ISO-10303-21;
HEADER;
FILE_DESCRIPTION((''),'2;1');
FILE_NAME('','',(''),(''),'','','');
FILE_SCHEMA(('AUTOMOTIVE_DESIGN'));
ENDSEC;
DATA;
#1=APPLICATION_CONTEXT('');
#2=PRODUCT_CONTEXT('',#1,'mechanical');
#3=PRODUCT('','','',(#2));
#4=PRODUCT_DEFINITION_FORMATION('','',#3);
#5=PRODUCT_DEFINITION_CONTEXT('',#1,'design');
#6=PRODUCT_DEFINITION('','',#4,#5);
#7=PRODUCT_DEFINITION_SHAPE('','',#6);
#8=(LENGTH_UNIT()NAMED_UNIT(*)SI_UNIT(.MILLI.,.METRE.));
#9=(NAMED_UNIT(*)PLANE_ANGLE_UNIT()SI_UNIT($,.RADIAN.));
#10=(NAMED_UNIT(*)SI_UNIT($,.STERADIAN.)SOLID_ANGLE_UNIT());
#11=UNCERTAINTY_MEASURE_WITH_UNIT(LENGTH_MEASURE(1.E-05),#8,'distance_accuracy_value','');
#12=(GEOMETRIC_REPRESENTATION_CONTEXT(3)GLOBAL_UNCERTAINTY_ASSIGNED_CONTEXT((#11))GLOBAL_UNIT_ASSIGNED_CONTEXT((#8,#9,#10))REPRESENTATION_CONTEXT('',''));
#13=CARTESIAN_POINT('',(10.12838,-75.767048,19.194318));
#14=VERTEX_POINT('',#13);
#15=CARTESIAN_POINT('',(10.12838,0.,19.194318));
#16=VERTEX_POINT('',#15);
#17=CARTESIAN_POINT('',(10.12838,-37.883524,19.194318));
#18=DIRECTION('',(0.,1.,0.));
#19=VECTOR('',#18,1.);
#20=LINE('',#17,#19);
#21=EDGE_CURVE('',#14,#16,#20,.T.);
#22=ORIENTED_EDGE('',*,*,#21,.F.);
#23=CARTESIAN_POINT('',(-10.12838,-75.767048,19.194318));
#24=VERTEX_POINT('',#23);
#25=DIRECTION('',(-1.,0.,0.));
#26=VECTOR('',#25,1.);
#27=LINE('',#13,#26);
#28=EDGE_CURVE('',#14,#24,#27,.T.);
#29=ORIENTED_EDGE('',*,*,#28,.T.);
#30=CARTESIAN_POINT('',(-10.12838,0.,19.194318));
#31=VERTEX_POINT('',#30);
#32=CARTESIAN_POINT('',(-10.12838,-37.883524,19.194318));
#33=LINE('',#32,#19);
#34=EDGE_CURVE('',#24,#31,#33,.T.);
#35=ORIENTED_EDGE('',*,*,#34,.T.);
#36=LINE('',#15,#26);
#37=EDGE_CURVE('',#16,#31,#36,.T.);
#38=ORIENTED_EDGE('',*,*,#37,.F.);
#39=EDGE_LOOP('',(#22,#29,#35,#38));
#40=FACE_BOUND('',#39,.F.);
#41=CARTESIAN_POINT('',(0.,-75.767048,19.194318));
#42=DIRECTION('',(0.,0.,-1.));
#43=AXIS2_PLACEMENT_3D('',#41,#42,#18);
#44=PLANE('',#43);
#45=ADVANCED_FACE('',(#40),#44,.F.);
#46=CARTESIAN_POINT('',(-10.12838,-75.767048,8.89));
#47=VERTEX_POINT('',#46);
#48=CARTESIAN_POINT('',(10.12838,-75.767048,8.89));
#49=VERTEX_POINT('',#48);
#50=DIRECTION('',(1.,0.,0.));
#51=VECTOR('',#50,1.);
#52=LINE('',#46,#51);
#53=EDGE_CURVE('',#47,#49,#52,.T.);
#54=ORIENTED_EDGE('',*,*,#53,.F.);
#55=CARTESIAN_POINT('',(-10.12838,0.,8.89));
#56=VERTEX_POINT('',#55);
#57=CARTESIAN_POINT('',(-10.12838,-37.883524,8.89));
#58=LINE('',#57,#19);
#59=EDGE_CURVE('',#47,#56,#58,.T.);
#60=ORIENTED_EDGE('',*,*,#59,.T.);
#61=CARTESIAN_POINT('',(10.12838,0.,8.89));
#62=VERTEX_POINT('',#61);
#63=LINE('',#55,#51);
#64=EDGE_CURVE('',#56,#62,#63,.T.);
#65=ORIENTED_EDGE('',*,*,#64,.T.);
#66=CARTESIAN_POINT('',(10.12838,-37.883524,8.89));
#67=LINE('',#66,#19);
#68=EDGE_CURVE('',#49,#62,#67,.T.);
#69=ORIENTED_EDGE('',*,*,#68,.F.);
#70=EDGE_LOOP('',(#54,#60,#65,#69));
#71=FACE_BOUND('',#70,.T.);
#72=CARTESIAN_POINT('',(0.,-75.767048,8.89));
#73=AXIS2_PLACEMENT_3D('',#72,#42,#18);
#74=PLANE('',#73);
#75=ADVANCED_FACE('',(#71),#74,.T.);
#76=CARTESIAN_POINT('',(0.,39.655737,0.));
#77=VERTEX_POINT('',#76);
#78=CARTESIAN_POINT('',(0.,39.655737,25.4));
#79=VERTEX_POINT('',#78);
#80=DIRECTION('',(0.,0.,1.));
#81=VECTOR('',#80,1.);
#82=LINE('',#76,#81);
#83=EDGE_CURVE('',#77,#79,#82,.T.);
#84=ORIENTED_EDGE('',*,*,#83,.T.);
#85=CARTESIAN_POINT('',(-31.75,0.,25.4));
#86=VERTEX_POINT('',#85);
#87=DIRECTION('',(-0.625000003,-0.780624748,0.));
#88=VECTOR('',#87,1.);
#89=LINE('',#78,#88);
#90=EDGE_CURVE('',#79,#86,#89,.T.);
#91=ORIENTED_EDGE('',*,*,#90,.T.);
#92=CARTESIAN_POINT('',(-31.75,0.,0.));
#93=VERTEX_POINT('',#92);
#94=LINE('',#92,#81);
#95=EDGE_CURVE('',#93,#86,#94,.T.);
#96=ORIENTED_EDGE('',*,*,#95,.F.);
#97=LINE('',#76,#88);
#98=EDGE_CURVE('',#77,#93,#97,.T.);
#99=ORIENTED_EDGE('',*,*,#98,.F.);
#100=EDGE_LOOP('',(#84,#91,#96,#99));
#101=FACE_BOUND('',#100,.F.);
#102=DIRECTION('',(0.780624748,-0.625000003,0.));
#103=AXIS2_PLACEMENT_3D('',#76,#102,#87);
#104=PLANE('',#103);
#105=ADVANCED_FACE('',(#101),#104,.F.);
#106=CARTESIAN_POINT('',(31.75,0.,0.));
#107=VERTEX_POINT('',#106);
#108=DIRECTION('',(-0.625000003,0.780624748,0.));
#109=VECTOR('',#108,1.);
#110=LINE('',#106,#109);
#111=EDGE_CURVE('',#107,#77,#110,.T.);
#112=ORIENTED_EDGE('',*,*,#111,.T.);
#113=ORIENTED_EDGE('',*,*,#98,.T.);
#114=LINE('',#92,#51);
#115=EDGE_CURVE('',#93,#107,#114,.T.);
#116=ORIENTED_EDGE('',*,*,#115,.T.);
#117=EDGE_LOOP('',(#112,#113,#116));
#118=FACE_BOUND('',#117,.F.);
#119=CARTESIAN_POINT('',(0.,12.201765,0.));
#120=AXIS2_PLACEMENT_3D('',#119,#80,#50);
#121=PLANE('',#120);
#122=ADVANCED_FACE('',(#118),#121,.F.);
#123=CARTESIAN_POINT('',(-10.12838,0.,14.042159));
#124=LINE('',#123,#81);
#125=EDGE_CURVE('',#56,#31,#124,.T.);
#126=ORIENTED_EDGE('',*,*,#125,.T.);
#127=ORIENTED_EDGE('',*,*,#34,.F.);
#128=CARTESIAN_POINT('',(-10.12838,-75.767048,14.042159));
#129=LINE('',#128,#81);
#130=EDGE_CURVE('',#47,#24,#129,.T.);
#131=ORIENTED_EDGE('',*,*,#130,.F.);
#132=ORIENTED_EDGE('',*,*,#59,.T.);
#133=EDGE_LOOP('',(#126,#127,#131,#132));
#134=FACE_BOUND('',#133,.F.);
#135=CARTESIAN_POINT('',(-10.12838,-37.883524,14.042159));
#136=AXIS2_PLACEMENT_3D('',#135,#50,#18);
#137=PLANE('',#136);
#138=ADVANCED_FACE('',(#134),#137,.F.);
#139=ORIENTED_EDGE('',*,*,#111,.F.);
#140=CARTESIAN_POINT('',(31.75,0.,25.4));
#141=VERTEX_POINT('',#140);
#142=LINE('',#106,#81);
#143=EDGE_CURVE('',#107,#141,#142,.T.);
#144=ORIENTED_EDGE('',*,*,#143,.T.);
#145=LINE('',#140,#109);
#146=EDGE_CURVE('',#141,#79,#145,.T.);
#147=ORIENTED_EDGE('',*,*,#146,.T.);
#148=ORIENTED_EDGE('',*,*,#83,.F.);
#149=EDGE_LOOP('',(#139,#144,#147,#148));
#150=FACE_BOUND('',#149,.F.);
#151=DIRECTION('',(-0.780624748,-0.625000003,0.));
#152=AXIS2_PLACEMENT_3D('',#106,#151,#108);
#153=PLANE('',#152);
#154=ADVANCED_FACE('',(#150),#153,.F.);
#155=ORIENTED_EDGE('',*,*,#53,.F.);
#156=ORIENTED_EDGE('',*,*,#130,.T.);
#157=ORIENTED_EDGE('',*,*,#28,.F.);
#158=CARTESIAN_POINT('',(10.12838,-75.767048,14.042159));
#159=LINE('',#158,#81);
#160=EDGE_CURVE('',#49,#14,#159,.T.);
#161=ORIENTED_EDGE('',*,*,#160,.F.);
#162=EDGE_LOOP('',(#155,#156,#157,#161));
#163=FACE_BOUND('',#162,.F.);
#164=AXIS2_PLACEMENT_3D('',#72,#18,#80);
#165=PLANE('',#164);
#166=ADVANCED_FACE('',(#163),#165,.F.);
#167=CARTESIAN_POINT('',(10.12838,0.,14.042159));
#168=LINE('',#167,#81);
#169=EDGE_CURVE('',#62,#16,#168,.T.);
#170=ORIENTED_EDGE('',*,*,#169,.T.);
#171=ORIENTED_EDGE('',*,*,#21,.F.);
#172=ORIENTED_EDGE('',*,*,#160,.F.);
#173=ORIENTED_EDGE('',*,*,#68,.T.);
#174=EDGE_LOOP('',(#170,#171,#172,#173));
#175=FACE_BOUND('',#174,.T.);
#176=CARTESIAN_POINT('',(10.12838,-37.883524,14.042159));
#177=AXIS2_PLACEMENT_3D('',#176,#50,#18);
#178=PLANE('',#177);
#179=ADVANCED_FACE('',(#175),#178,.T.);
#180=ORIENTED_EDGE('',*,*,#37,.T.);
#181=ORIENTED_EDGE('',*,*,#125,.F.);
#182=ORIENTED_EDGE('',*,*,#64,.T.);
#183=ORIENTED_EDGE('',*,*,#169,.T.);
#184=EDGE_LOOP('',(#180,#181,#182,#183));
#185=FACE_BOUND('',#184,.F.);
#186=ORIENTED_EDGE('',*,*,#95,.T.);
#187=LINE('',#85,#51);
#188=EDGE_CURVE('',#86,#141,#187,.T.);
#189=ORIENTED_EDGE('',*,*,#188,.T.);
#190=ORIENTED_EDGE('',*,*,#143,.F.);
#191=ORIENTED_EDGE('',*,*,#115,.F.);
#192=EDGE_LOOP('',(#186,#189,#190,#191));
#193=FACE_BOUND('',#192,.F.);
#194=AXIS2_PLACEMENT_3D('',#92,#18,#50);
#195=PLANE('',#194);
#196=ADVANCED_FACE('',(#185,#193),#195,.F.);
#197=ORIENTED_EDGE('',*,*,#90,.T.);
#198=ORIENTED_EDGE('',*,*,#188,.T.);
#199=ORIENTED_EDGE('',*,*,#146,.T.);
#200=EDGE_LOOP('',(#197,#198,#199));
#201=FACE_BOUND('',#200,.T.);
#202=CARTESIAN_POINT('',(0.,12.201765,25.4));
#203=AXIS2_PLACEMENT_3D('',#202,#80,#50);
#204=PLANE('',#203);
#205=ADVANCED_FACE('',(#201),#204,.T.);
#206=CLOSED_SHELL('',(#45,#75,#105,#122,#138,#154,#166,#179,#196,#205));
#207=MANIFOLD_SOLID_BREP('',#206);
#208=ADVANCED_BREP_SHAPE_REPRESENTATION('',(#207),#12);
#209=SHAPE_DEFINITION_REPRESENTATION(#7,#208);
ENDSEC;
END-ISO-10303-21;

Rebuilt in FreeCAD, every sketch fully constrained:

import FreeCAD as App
import Part
import Sketcher
Q = App.Units.Quantity


def add_polygon(sketch, points):
    """Adds a closed chain of lines whose ends are joined by coincident constraints."""
    first, n = sketch.GeometryCount, len(points)
    for a, b in zip(points, points[1:] + points[:1]):
        sketch.addGeometry(Part.LineSegment(App.Vector(*a, 0), App.Vector(*b, 0)), False)
    for i in range(n):
        sketch.addConstraint(Sketcher.Constraint("Coincident", first + i, 2, first + (i + 1) % n, 1))

doc = App.newDocument("Part")
body = doc.addObject("PartDesign::Body", "Body")

# Sketch on XY plane
sketch1 = body.newObject("Sketcher::SketchObject", "Sketch")
sketch1.AttachmentSupport = (doc.getObject("XY_Plane"), [""])
sketch1.MapMode = "FlatFace"
add_polygon(sketch1, [(32, 0), (0, 40), (-32, 0)])  # lines 0-2
sketch1.addConstraint(Sketcher.Constraint("Horizontal", 2))
sketch1.addConstraint(Sketcher.Constraint("Symmetric", 1, 2, 2, 2, -1, 1))
sketch1.addConstraint(Sketcher.Constraint("PointOnObject", 0, 2, -2))
sketch1.addConstraint(Sketcher.Constraint("Distance", 0, Q("2 in")))
sketch1.addConstraint(Sketcher.Constraint("DistanceX", 2, 1, 2, 2, Q("2.5 in")))
pad1 = body.newObject("PartDesign::Pad", "Pad")
pad1.Profile = sketch1
pad1.Length = Q("1 in")

# Sketch on YZ plane
sketch2 = body.newObject("Sketcher::SketchObject", "Sketch001")
sketch2.AttachmentSupport = (doc.getObject("YZ_Plane"), [""])
sketch2.MapMode = "FlatFace"
add_polygon(sketch2, [(-76, 19), (-76, 9), (0, 9), (0, 19)])  # lines 0-3
sketch2.addConstraint(Sketcher.Constraint("Vertical", 0))
sketch2.addConstraint(Sketcher.Constraint("Horizontal", 1))
sketch2.addConstraint(Sketcher.Constraint("Vertical", 2))
sketch2.addConstraint(Sketcher.Constraint("Horizontal", 3))
sketch2.addConstraint(Sketcher.Constraint("PointOnObject", 1, 2, -2))
sketch2.addConstraint(Sketcher.Constraint("DistanceY", -1, 1, 0, 2, Q("0.35 in")))
sketch2.addConstraint(Sketcher.Constraint("DistanceX", 1, 1, 1, 2, 75.767048))
sketch2.addConstraint(Sketcher.Constraint("DistanceY", 0, 2, 0, 1, 10.304318))
pad2 = body.newObject("PartDesign::Pad", "Pad001")
pad2.Profile = sketch2
pad2.Length = 20.25676
pad2.Midplane = True

doc.recompute()
